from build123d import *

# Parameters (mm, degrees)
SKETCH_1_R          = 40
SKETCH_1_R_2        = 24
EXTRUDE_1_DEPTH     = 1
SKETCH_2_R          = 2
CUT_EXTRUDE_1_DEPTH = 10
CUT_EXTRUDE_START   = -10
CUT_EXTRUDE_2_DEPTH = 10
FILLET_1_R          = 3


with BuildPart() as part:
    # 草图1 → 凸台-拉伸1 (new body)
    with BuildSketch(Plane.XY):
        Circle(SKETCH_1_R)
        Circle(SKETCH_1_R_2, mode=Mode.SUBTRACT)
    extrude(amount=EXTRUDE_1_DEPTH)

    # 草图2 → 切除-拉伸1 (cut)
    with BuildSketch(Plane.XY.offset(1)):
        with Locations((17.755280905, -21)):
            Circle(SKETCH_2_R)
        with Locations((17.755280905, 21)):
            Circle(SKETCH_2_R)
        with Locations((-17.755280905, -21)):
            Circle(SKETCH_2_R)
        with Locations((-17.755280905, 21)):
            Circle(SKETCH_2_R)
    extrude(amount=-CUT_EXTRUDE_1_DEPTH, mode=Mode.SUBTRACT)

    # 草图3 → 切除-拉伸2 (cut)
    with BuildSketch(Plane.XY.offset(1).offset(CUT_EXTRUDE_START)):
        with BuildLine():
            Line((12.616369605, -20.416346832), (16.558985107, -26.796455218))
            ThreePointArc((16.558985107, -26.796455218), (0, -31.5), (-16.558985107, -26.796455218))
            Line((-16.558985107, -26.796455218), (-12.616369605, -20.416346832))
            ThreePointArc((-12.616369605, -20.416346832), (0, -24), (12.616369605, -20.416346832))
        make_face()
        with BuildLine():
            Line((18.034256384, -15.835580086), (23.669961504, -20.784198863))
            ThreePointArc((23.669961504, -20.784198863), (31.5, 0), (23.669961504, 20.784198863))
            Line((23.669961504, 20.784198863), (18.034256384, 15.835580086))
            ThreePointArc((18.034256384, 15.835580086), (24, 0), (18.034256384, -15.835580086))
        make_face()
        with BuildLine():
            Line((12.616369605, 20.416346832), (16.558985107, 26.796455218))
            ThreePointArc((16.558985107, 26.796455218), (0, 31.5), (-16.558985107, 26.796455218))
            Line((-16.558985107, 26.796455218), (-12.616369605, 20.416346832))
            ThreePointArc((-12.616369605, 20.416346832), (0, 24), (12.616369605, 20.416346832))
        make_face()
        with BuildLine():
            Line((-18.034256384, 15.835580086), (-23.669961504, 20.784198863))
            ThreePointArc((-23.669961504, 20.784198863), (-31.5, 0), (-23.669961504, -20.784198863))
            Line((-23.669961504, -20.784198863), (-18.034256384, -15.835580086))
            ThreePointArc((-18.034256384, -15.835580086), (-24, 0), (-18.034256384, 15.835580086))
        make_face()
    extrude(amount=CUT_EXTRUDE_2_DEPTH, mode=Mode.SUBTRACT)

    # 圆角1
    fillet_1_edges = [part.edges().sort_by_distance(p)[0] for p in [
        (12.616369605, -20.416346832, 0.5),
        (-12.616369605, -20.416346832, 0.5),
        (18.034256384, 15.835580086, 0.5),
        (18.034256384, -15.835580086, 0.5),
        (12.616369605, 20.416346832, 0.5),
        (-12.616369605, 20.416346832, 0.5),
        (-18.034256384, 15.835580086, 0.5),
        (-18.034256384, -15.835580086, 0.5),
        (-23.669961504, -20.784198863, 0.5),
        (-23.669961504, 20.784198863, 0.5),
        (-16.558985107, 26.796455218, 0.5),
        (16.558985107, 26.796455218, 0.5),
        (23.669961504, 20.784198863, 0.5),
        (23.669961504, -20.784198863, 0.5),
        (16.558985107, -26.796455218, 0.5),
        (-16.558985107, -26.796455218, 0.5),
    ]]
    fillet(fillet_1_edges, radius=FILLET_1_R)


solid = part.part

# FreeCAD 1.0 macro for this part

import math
import FreeCAD as App
import Part
import Sketcher
from FreeCAD import Vector
Q = App.Units.Quantity


def edges_at(feature, points):
    """Names of the edges that pass closest to the given points."""
    edges = feature.Shape.Edges
    near = lambda p: min(range(len(edges)), key=lambda i: edges[i].distToShape(Part.Vertex(*p))[0])
    return sorted({f"Edge{near(p) + 1}" for p in points})

doc = App.newDocument("Part")
body = doc.addObject("PartDesign::Body", "Body")

# Sketch on XY plane
sketch1 = doc.addObject("Sketcher::SketchObject", "Sketch")
body.addObject(sketch1)
sketch1.AttachmentSupport = (doc.XY_Plane, [""])
sketch1.MapMode = "FlatFace"
sketch1.addGeometry([
    Part.Circle(Vector(0, 0, 0), Vector(0, 0, 1), 40),
    Part.Circle(Vector(0, 0, 0), Vector(0, 0, 1), 24),
], False)
sketch1.addConstraint([
    Sketcher.Constraint("Coincident", 0, 3, -1, 1),
    Sketcher.Constraint("Coincident", 1, 3, -1, 1),
    Sketcher.Constraint("Diameter", 0, Q("80 mm")),
    Sketcher.Constraint("Diameter", 1, Q("48 mm")),
])
pad1 = doc.addObject("PartDesign::Pad", "Pad")
body.addObject(pad1)
pad1.Profile = sketch1
pad1.Length = 1

# Sketch on XY plane
sketch2 = doc.addObject("Sketcher::SketchObject", "Sketch001")
body.addObject(sketch2)
sketch2.AttachmentSupport = (doc.XY_Plane, [""])
sketch2.MapMode = "FlatFace"
sketch2.AttachmentOffset = App.Placement(Vector(0, 0, 1), App.Rotation())
sketch2.addGeometry([
    Part.Circle(Vector(17.8, -21, 0), Vector(0, 0, 1), 2),
    Part.Circle(Vector(17.8, 21, 0), Vector(0, 0, 1), 2),
    Part.Circle(Vector(-17.8, -21, 0), Vector(0, 0, 1), 2),
    Part.Circle(Vector(-17.8, 21, 0), Vector(0, 0, 1), 2),
], False)
sketch2.addConstraint([
    Sketcher.Constraint("Equal", 0, 1),
    Sketcher.Constraint("Equal", 1, 2),
    Sketcher.Constraint("Equal", 2, 3),
    Sketcher.Constraint("Symmetric", 1, 3, 2, 3, -1, 1),
    Sketcher.Constraint("Symmetric", 0, 3, 3, 3, -1, 1),
    Sketcher.Constraint("Symmetric", 0, 3, 2, 3, -2),
    Sketcher.Constraint("Diameter", 0, Q("4 mm")),
    Sketcher.Constraint("DistanceY", 0, 3, -1, 1, Q("21 mm")),
    Sketcher.Constraint("DistanceX", -1, 1, 0, 3, Q("17.755281 mm")),
])
pocket1 = doc.addObject("PartDesign::Pocket", "Pocket")
body.addObject(pocket1)
pocket1.Profile = sketch2
pocket1.Length = 10

# Sketch on XY plane
sketch3 = doc.addObject("Sketcher::SketchObject", "Sketch002")
body.addObject(sketch3)
sketch3.AttachmentSupport = (doc.XY_Plane, [""])
sketch3.MapMode = "FlatFace"
sketch3.AttachmentOffset = App.Placement(Vector(0, 0, -9), App.Rotation())
sketch3.addGeometry([
    Part.LineSegment(Vector(17, -27, 0), Vector(13, -20, 0)),  # 0
    Part.ArcOfCircle(Part.Circle(Vector(0, 0, 0), Vector(0, 0, 1), 24), math.radians(-122), math.radians(-58)),  # 1
    Part.LineSegment(Vector(-13, -20, 0), Vector(-17, -27, 0)),  # 2
    Part.ArcOfCircle(Part.Circle(Vector(0, 0, 0), Vector(0, 0, 1), 32), math.radians(-122), math.radians(-58)),  # 3
    Part.LineSegment(Vector(18, -16, 0), Vector(24, -21, 0)),  # 4
    Part.ArcOfCircle(Part.Circle(Vector(0, 0, 0), Vector(0, 0, 1), 31), math.radians(-41), math.radians(41)),  # 5
    Part.LineSegment(Vector(24, 21, 0), Vector(18, 16, 0)),  # 6
    Part.ArcOfCircle(Part.Circle(Vector(0, 0, 0), Vector(0, 0, 1), 24), math.radians(-41), math.radians(41)),  # 7
    Part.LineSegment(Vector(13, 20, 0), Vector(17, 27, 0)),  # 8
    Part.ArcOfCircle(Part.Circle(Vector(0, 0, 0), Vector(0, 0, 1), 32), math.radians(58), math.radians(122)),  # 9
    Part.LineSegment(Vector(-17, 27, 0), Vector(-13, 20, 0)),  # 10
    Part.ArcOfCircle(Part.Circle(Vector(0, 0, 0), Vector(0, 0, 1), 24), math.radians(58), math.radians(122)),  # 11
    Part.LineSegment(Vector(-18, 16, 0), Vector(-24, 21, 0)),  # 12
    Part.ArcOfCircle(Part.Circle(Vector(0, 0, 0), Vector(0, 0, 1), 31), math.radians(139), math.radians(221)),  # 13
    Part.LineSegment(Vector(-24, -21, 0), Vector(-18, -16, 0)),  # 14
    Part.ArcOfCircle(Part.Circle(Vector(0, 0, 0), Vector(0, 0, 1), 24), math.radians(139), math.radians(221)),  # 15
], False)
sketch3.addConstraint([
    Sketcher.Constraint("Coincident", 0, 2, 1, 2),
    Sketcher.Constraint("Coincident", 1, 1, 2, 1),
    Sketcher.Constraint("Coincident", 2, 2, 3, 1),
    Sketcher.Constraint("Coincident", 3, 2, 0, 1),
    Sketcher.Constraint("Coincident", 4, 2, 5, 1),
    Sketcher.Constraint("Coincident", 5, 2, 6, 1),
    Sketcher.Constraint("Coincident", 6, 2, 7, 2),
    Sketcher.Constraint("Coincident", 7, 1, 4, 1),
    Sketcher.Constraint("Coincident", 8, 2, 9, 1),
    Sketcher.Constraint("Coincident", 9, 2, 10, 1),
    Sketcher.Constraint("Coincident", 10, 2, 11, 2),
    Sketcher.Constraint("Coincident", 11, 1, 8, 1),
    Sketcher.Constraint("Coincident", 12, 2, 13, 1),
    Sketcher.Constraint("Coincident", 13, 2, 14, 1),
    Sketcher.Constraint("Coincident", 14, 2, 15, 2),
    Sketcher.Constraint("Coincident", 15, 1, 12, 1),
    Sketcher.Constraint("Coincident", 1, 3, -1, 1),
    Sketcher.Constraint("Coincident", 3, 3, -1, 1),
    Sketcher.Constraint("Coincident", 5, 3, -1, 1),
    Sketcher.Constraint("Coincident", 7, 3, -1, 1),
    Sketcher.Constraint("Coincident", 9, 3, -1, 1),
    Sketcher.Constraint("Coincident", 11, 3, -1, 1),
    Sketcher.Constraint("Coincident", 13, 3, -1, 1),
    Sketcher.Constraint("Coincident", 15, 3, -1, 1),
    Sketcher.Constraint("Equal", 3, 5),
    Sketcher.Constraint("Equal", 1, 7),
    Sketcher.Constraint("Equal", 5, 9),
    Sketcher.Constraint("Equal", 7, 11),
    Sketcher.Constraint("Equal", 9, 13),
    Sketcher.Constraint("Equal", 11, 15),
    Sketcher.Constraint("Parallel", 2, 8),
    Sketcher.Constraint("Parallel", 0, 10),
    Sketcher.Constraint("Parallel", 4, 12),
    Sketcher.Constraint("Parallel", 6, 14),
    Sketcher.Constraint("Horizontal", 0, 2, 1, 1),
    Sketcher.Constraint("Horizontal", 2, 2, 3, 2),
    Sketcher.Constraint("Horizontal", 8, 2, 9, 2),
    Sketcher.Constraint("Horizontal", 5, 2, 12, 2),
    Sketcher.Constraint("Horizontal", 4, 2, 13, 2),
    Sketcher.Constraint("Horizontal", 7, 1, 14, 2),
    Sketcher.Constraint("Vertical", 4, 2, 5, 2),
    Sketcher.Constraint("Vertical", 3, 2, 8, 2),
    Sketcher.Constraint("Radius", 1, Q("24 mm")),
    Sketcher.Constraint("Radius", 3, Q("31.5 mm")),
    Sketcher.Constraint("DistanceY", 4, 2, -1, 1, Q("20.784199 mm")),
    Sketcher.Constraint("DistanceX", -1, 1, 0, 2, Q("12.61637 mm")),
    Sketcher.Constraint("DistanceY", -1, 1, 6, 2, Q("15.83558 mm")),
    Sketcher.Constraint("DistanceY", 2, 2, 1, 1, Q("6.380108 mm")),
])
pocket2 = doc.addObject("PartDesign::Pocket", "Pocket001")
body.addObject(pocket2)
pocket2.Profile = sketch3
pocket2.Length = 10
pocket2.Reversed = True
doc.recompute()

fillet = doc.addObject("PartDesign::Fillet", "Fillet")
body.addObject(fillet)
fillet.Base = (pocket2, edges_at(pocket2, [
    (12.616, -20.416, 0.5),
    (-12.616, -20.416, 0.5),
    (18.034, 15.836, 0.5),
    (18.034, -15.836, 0.5),
    (12.616, 20.416, 0.5),
    (-12.616, 20.416, 0.5),
    (-18.034, 15.836, 0.5),
    (-18.034, -15.836, 0.5),
    (-23.67, -20.784, 0.5),
    (-23.67, 20.784, 0.5),
    (-16.559, 26.796, 0.5),
    (16.559, 26.796, 0.5),
    (23.67, 20.784, 0.5),
    (23.67, -20.784, 0.5),
    (16.559, -26.796, 0.5),
    (-16.559, -26.796, 0.5),
]))
fillet.Radius = 3

doc.recompute()
